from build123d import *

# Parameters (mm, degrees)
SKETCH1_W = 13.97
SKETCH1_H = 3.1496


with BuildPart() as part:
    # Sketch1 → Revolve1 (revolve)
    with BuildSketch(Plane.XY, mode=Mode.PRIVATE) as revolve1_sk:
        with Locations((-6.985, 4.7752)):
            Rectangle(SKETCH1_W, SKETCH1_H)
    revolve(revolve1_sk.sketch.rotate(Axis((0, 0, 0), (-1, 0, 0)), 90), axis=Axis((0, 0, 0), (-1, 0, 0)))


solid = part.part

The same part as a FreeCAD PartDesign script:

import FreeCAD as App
import Part
import Sketcher
from FreeCAD import Vector
Q = App.Units.Quantity

doc = App.newDocument("Part")
body = doc.addObject("PartDesign::Body", "Body")

sketch1 = body.newObject("Sketcher::SketchObject", "Sketch")
sketch1.AttachmentSupport = (doc.getObject("XY_Plane"), [""])
sketch1.MapMode = "FlatFace"
sketch1.addGeometry(Part.LineSegment(Vector(-14, 6.3, 0), Vector(-14, 3.2, 0)), False)
sketch1.addGeometry(Part.LineSegment(Vector(-14, 3.2, 0), Vector(0, 3.2, 0)), False)
sketch1.addGeometry(Part.LineSegment(Vector(0, 3.2, 0), Vector(0, 6.3, 0)), False)
sketch1.addGeometry(Part.LineSegment(Vector(0, 6.3, 0), Vector(-14, 6.3, 0)), False)
sketch1.addConstraint(Sketcher.Constraint("Coincident", 0, 2, 1, 1))
sketch1.addConstraint(Sketcher.Constraint("Coincident", 1, 2, 2, 1))
sketch1.addConstraint(Sketcher.Constraint("Coincident", 2, 2, 3, 1))
sketch1.addConstraint(Sketcher.Constraint("Coincident", 3, 2, 0, 1))
sketch1.addConstraint(Sketcher.Constraint("Vertical", 0))
sketch1.addConstraint(Sketcher.Constraint("Horizontal", 1))
sketch1.addConstraint(Sketcher.Constraint("Vertical", 2))
sketch1.addConstraint(Sketcher.Constraint("Horizontal", 3))
sketch1.addConstraint(Sketcher.Constraint("PointOnObject", 1, 2, -2))
sketch1.addConstraint(Sketcher.Constraint("DistanceX", 1, 1, 1, 2, Q("0.55 in")))
sketch1.addConstraint(Sketcher.Constraint("DistanceY", 0, 2, 0, 1, Q("0.124 in")))
sketch1.addConstraint(Sketcher.Constraint("DistanceY", -1, 1, 2, 2, Q("0.25 in")))
revolution = body.newObject("PartDesign::Revolution", "Revolution")
revolution.Profile = sketch1
revolution.ReferenceAxis = (sketch1, ["H_Axis"])
revolution.Angle = 360

doc.recompute()
